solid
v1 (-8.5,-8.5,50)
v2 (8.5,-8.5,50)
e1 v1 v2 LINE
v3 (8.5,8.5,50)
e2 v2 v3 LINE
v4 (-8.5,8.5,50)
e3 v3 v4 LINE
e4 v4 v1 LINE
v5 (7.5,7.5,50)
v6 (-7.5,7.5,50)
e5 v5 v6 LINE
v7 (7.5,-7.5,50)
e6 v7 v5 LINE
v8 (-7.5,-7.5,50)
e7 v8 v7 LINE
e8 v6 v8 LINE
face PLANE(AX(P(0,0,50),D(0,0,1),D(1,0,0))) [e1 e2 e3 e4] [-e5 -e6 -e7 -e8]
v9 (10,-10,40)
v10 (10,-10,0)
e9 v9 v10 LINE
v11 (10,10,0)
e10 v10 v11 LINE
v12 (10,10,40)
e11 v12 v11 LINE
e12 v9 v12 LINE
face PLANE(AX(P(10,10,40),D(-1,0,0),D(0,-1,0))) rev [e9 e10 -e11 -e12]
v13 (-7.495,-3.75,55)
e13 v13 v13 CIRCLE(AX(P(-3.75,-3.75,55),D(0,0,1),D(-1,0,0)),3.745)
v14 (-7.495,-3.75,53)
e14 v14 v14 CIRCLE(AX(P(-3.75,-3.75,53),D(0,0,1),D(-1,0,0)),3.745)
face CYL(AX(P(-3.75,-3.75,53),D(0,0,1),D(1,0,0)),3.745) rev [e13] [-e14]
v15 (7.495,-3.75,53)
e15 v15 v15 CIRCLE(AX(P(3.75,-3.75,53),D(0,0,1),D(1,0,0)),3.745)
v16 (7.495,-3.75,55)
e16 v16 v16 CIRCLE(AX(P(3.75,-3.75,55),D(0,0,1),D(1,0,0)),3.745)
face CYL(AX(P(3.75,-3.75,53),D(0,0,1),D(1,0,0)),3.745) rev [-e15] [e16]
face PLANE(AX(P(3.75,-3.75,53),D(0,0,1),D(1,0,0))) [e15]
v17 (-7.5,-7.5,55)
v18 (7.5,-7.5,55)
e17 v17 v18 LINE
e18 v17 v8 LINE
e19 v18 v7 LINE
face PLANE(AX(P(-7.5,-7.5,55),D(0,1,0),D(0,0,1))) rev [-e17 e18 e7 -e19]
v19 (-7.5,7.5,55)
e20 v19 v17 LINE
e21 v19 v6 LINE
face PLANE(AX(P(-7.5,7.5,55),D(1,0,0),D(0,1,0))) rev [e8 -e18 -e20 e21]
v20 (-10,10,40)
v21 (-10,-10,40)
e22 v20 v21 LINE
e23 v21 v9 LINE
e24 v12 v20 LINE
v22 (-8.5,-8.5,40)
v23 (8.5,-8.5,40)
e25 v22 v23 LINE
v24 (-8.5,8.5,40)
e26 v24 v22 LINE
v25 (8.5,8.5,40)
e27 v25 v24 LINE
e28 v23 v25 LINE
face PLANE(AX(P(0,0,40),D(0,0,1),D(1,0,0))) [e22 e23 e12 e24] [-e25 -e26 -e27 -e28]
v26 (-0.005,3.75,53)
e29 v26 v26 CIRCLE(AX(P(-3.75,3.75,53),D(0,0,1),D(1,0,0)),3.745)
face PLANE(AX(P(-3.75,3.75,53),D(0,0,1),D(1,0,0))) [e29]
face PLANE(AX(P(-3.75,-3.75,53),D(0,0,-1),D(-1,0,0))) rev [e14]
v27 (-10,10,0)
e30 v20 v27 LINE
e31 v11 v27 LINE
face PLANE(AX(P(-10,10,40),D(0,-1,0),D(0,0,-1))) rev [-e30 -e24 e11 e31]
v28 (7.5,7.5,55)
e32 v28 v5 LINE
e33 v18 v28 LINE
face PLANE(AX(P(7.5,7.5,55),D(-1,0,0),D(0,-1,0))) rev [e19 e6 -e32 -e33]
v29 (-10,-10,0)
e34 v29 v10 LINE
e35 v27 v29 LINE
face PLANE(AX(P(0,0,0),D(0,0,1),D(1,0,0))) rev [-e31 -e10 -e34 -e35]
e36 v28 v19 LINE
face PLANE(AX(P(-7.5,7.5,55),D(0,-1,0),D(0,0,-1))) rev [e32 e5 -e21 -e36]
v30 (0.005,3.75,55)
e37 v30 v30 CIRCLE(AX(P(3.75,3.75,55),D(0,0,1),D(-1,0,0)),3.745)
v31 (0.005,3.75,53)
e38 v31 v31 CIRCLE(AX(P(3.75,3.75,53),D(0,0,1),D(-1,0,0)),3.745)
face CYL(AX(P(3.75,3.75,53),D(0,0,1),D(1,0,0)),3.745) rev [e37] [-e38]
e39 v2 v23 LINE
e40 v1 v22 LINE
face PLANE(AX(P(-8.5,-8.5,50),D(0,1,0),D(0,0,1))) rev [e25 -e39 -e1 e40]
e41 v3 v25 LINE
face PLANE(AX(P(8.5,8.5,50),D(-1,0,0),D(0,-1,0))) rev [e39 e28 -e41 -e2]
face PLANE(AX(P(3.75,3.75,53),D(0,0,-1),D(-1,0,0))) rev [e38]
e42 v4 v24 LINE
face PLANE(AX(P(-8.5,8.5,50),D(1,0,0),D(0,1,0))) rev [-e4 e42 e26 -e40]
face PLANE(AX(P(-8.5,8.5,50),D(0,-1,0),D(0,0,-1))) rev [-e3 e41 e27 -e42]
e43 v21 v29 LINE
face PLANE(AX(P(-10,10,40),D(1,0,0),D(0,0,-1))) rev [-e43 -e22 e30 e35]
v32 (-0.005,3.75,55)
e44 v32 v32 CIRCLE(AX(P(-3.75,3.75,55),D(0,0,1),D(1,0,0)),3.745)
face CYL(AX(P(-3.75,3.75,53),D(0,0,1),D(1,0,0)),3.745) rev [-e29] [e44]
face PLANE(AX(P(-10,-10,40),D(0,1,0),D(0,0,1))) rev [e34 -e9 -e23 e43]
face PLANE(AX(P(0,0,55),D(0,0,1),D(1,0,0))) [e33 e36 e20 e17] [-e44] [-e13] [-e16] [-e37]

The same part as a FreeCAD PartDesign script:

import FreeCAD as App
import Part
import Sketcher
Q = App.Units.Quantity


def add_polygon(sketch, points):
    """Adds a closed chain of lines whose ends are joined by coincident constraints."""
    first, n = sketch.GeometryCount, len(points)
    for a, b in zip(points, points[1:] + points[:1]):
        sketch.addGeometry(Part.LineSegment(App.Vector(*a, 0), App.Vector(*b, 0)), False)
    for i in range(n):
        sketch.addConstraint(Sketcher.Constraint("Coincident", first + i, 2, first + (i + 1) % n, 1))

doc = App.newDocument("Part")
body = doc.addObject("PartDesign::Body", "Body")

# Sketch on XY plane
sketch1 = body.newObject("Sketcher::SketchObject", "Sketch")
sketch1.AttachmentSupport = (doc.getObject("XY_Plane"), [""])
sketch1.MapMode = "FlatFace"
add_polygon(sketch1, [(-10, 10), (-10, -10), (10, -10), (10, 10)])  # lines 0-3
sketch1.addConstraint([
    Sketcher.Constraint("Vertical", 0),
    Sketcher.Constraint("Horizontal", 1),
    Sketcher.Constraint("Vertical", 2),
    Sketcher.Constraint("Horizontal", 3),
    Sketcher.Constraint("Symmetric", 0, 2, 2, 2, -1, 1),
    Sketcher.Constraint("Equal", 3, 0),
    Sketcher.Constraint("DistanceX", 1, 1, 1, 2, Q("20 mm")),
])
pad1 = body.newObject("PartDesign::Pad", "Pad")
pad1.Profile = sketch1
pad1.Length = 40

# Sketch on XY plane
sketch2 = body.newObject("Sketcher::SketchObject", "Sketch001")
sketch2.AttachmentSupport = (doc.getObject("XY_Plane"), [""])
sketch2.MapMode = "FlatFace"
sketch2.AttachmentOffset = App.Placement(App.Vector(0, 0, 40), App.Rotation())
add_polygon(sketch2, [(-8, 8), (-8, -8), (8, -8), (8, 8)])  # lines 0-3
sketch2.addConstraint([
    Sketcher.Constraint("Vertical", 0),
    Sketcher.Constraint("Horizontal", 1),
    Sketcher.Constraint("Vertical", 2),
    Sketcher.Constraint("Horizontal", 3),
    Sketcher.Constraint("Symmetric", 0, 2, 2, 2, -1, 1),
    Sketcher.Constraint("Equal", 3, 0),
    Sketcher.Constraint("DistanceX", 1, 1, 1, 2, Q("17 mm")),
])
pad2 = body.newObject("PartDesign::Pad", "Pad001")
pad2.Profile = sketch2
pad2.Length = 10

# Sketch on XY plane
sketch3 = body.newObject("Sketcher::SketchObject", "Sketch002")
sketch3.AttachmentSupport = (doc.getObject("XY_Plane"), [""])
sketch3.MapMode = "FlatFace"
sketch3.AttachmentOffset = App.Placement(App.Vector(0, 0, 50), App.Rotation())
add_polygon(sketch3, [(-8, 8), (-8, -8), (8, -8), (8, 8)])  # lines 0-3
sketch3.addConstraint([
    Sketcher.Constraint("Vertical", 0),
    Sketcher.Constraint("Horizontal", 1),
    Sketcher.Constraint("Vertical", 2),
    Sketcher.Constraint("Horizontal", 3),
    Sketcher.Constraint("Symmetric", 0, 2, 2, 2, -1, 1),
    Sketcher.Constraint("Equal", 3, 0),
    Sketcher.Constraint("DistanceX", 1, 1, 1, 2, Q("15 mm")),
])
pad3 = body.newObject("PartDesign::Pad", "Pad002")
pad3.Profile = sketch3
pad3.Length = 5

# Sketch on XY plane
sketch4 = body.newObject("Sketcher::SketchObject", "Sketch003")
sketch4.AttachmentSupport = (doc.getObject("XY_Plane"), [""])
sketch4.MapMode = "FlatFace"
sketch4.AttachmentOffset = App.Placement(App.Vector(0, 0, 55), App.Rotation())
sketch4.addGeometry([
    Part.Circle(App.Vector(-3.8, 3.8, 0), App.Vector(0, 0, 1), 3.7),
    Part.Circle(App.Vector(3.8, 3.8, 0), App.Vector(0, 0, 1), 3.7),
    Part.Circle(App.Vector(3.8, -3.8, 0), App.Vector(0, 0, 1), 3.7),
    Part.Circle(App.Vector(-3.8, -3.8, 0), App.Vector(0, 0, 1), 3.7),
], False)
sketch4.addConstraint([
    Sketcher.Constraint("Equal", 0, 1),
    Sketcher.Constraint("Equal", 1, 2),
    Sketcher.Constraint("Equal", 2, 3),
    Sketcher.Constraint("Symmetric", 0, 3, 2, 3, -1, 1),
    Sketcher.Constraint("Symmetric", 1, 3, 3, 3, -1, 1),
    Sketcher.Constraint("Symmetric", 0, 3, 1, 3, -2),
    Sketcher.Constraint("Diameter", 0, Q("7.49 mm")),
    Sketcher.Constraint("DistanceX", 0, 3, 1, 3, Q("7.5 mm")),
    Sketcher.Constraint("DistanceY", 2, 3, 1, 3, Q("7.5 mm")),
])
pocket1 = body.newObject("PartDesign::Pocket", "Pocket")
pocket1.Profile = sketch4
pocket1.Length = 2

doc.recompute()
